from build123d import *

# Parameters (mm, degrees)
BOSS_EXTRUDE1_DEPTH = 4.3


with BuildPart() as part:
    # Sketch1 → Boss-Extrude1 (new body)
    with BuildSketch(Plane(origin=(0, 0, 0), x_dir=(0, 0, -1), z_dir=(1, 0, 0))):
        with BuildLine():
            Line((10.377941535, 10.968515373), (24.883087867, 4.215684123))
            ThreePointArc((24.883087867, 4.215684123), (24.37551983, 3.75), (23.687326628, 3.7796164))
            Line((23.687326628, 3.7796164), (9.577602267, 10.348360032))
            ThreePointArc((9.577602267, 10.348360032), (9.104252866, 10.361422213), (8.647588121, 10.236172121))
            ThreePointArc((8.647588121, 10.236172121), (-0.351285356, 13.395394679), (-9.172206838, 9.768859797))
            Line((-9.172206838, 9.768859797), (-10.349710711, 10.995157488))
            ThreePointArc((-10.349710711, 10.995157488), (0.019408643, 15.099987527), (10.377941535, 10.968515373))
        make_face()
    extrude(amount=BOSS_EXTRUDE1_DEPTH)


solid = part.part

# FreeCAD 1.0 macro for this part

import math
import FreeCAD as App
import Part
import Sketcher
Q = App.Units.Quantity

doc = App.newDocument("Part")
body = doc.addObject("PartDesign::Body", "Body")

sketch1 = body.newObject("Sketcher::SketchObject", "Sketch")
sketch1.AttachmentSupport = (doc.getObject("YZ_Plane"), [""])
sketch1.MapMode = "FlatFace"
sketch1.addGeometry([
    Part.LineSegment(App.Vector(4.215684, -24.883088, 0), App.Vector(10.968515, -10.377942, 0)),
    Part.ArcOfCircle(Part.Circle(App.Vector(0, 0, 0), App.Vector(0, 0, 1), 15.1), math.radians(-43.415252), math.radians(43.267963)),
    Part.LineSegment(App.Vector(10.995157, 10.349711, 0), App.Vector(9.76886, 9.172207, 0)),
    Part.ArcOfCircle(Part.Circle(App.Vector(0, 0, 0), App.Vector(0, 0, 1), 13.4), math.radians(-40.191352), math.radians(43.195751)),
    Part.ArcOfCircle(Part.Circle(App.Vector(8.763486, -9.297012, 0), App.Vector(0, 0, 1), 1.60952), math.radians(-10.03975), math.radians(23.796497)),
    Part.LineSegment(App.Vector(10.34836, -9.577602, 0), App.Vector(3.779616, -23.687327, 0)),
    Part.ArcOfCircle(Part.Circle(App.Vector(4.595531, -24.067173, 0), App.Vector(0, 0, 1), 0.9), math.radians(155.035796), math.radians(245.035796)),
], False)
sketch1.addConstraint([
    Sketcher.Constraint("Coincident", 0, 2, 1, 1),
    Sketcher.Constraint("Coincident", 1, 2, 2, 1),
    Sketcher.Constraint("Coincident", 2, 2, 3, 2),
    Sketcher.Constraint("Coincident", 3, 1, 4, 2),
    Sketcher.Constraint("Coincident", 4, 1, 5, 1),
    Sketcher.Constraint("Coincident", 5, 2, 6, 1),
    Sketcher.Constraint("Coincident", 6, 2, 0, 1),
    Sketcher.Constraint("Coincident", 1, 3, -1, 1),
    Sketcher.Constraint("Coincident", 3, 3, -1, 1),
    Sketcher.Constraint("Radius", 1, Q("15.1 mm")),
    Sketcher.Constraint("Radius", 3, Q("13.4 mm")),
    Sketcher.Constraint("Radius", 6, Q("0.9 mm")),
    Sketcher.Constraint("Distance", 0, Q("16 mm")),
    Sketcher.Constraint("Radius", 4, Q("1.60952 mm")),
    Sketcher.Constraint("DistanceX", 5, 2, 0, 2, Q("7.188899 mm")),
    Sketcher.Constraint("DistanceX", -1, 1, 6, 3, Q("4.595531 mm")),
    Sketcher.Constraint("DistanceY", 0, 2, -1, 1, Q("10.377942 mm")),
    Sketcher.Constraint("DistanceY", -1, 1, 1, 2, Q("10.349711 mm")),
    Sketcher.Constraint("DistanceX", -1, 1, 2, 2, Q("9.76886 mm")),
    Sketcher.Constraint("DistanceY", 3, 1, -1, 1, Q("8.647588 mm")),
    Sketcher.Constraint("DistanceX", -1, 1, 4, 1, Q("10.34836 mm")),
    Sketcher.Constraint("DistanceY", 6, 3, 4, 3, Q("14.770161 mm")),
    Sketcher.Constraint("DistanceY", 6, 2, 5, 2, Q("1.195761 mm")),
])
pad1 = body.newObject("PartDesign::Pad", "Pad")
pad1.Profile = sketch1
pad1.Length = 4.3

doc.recompute()
